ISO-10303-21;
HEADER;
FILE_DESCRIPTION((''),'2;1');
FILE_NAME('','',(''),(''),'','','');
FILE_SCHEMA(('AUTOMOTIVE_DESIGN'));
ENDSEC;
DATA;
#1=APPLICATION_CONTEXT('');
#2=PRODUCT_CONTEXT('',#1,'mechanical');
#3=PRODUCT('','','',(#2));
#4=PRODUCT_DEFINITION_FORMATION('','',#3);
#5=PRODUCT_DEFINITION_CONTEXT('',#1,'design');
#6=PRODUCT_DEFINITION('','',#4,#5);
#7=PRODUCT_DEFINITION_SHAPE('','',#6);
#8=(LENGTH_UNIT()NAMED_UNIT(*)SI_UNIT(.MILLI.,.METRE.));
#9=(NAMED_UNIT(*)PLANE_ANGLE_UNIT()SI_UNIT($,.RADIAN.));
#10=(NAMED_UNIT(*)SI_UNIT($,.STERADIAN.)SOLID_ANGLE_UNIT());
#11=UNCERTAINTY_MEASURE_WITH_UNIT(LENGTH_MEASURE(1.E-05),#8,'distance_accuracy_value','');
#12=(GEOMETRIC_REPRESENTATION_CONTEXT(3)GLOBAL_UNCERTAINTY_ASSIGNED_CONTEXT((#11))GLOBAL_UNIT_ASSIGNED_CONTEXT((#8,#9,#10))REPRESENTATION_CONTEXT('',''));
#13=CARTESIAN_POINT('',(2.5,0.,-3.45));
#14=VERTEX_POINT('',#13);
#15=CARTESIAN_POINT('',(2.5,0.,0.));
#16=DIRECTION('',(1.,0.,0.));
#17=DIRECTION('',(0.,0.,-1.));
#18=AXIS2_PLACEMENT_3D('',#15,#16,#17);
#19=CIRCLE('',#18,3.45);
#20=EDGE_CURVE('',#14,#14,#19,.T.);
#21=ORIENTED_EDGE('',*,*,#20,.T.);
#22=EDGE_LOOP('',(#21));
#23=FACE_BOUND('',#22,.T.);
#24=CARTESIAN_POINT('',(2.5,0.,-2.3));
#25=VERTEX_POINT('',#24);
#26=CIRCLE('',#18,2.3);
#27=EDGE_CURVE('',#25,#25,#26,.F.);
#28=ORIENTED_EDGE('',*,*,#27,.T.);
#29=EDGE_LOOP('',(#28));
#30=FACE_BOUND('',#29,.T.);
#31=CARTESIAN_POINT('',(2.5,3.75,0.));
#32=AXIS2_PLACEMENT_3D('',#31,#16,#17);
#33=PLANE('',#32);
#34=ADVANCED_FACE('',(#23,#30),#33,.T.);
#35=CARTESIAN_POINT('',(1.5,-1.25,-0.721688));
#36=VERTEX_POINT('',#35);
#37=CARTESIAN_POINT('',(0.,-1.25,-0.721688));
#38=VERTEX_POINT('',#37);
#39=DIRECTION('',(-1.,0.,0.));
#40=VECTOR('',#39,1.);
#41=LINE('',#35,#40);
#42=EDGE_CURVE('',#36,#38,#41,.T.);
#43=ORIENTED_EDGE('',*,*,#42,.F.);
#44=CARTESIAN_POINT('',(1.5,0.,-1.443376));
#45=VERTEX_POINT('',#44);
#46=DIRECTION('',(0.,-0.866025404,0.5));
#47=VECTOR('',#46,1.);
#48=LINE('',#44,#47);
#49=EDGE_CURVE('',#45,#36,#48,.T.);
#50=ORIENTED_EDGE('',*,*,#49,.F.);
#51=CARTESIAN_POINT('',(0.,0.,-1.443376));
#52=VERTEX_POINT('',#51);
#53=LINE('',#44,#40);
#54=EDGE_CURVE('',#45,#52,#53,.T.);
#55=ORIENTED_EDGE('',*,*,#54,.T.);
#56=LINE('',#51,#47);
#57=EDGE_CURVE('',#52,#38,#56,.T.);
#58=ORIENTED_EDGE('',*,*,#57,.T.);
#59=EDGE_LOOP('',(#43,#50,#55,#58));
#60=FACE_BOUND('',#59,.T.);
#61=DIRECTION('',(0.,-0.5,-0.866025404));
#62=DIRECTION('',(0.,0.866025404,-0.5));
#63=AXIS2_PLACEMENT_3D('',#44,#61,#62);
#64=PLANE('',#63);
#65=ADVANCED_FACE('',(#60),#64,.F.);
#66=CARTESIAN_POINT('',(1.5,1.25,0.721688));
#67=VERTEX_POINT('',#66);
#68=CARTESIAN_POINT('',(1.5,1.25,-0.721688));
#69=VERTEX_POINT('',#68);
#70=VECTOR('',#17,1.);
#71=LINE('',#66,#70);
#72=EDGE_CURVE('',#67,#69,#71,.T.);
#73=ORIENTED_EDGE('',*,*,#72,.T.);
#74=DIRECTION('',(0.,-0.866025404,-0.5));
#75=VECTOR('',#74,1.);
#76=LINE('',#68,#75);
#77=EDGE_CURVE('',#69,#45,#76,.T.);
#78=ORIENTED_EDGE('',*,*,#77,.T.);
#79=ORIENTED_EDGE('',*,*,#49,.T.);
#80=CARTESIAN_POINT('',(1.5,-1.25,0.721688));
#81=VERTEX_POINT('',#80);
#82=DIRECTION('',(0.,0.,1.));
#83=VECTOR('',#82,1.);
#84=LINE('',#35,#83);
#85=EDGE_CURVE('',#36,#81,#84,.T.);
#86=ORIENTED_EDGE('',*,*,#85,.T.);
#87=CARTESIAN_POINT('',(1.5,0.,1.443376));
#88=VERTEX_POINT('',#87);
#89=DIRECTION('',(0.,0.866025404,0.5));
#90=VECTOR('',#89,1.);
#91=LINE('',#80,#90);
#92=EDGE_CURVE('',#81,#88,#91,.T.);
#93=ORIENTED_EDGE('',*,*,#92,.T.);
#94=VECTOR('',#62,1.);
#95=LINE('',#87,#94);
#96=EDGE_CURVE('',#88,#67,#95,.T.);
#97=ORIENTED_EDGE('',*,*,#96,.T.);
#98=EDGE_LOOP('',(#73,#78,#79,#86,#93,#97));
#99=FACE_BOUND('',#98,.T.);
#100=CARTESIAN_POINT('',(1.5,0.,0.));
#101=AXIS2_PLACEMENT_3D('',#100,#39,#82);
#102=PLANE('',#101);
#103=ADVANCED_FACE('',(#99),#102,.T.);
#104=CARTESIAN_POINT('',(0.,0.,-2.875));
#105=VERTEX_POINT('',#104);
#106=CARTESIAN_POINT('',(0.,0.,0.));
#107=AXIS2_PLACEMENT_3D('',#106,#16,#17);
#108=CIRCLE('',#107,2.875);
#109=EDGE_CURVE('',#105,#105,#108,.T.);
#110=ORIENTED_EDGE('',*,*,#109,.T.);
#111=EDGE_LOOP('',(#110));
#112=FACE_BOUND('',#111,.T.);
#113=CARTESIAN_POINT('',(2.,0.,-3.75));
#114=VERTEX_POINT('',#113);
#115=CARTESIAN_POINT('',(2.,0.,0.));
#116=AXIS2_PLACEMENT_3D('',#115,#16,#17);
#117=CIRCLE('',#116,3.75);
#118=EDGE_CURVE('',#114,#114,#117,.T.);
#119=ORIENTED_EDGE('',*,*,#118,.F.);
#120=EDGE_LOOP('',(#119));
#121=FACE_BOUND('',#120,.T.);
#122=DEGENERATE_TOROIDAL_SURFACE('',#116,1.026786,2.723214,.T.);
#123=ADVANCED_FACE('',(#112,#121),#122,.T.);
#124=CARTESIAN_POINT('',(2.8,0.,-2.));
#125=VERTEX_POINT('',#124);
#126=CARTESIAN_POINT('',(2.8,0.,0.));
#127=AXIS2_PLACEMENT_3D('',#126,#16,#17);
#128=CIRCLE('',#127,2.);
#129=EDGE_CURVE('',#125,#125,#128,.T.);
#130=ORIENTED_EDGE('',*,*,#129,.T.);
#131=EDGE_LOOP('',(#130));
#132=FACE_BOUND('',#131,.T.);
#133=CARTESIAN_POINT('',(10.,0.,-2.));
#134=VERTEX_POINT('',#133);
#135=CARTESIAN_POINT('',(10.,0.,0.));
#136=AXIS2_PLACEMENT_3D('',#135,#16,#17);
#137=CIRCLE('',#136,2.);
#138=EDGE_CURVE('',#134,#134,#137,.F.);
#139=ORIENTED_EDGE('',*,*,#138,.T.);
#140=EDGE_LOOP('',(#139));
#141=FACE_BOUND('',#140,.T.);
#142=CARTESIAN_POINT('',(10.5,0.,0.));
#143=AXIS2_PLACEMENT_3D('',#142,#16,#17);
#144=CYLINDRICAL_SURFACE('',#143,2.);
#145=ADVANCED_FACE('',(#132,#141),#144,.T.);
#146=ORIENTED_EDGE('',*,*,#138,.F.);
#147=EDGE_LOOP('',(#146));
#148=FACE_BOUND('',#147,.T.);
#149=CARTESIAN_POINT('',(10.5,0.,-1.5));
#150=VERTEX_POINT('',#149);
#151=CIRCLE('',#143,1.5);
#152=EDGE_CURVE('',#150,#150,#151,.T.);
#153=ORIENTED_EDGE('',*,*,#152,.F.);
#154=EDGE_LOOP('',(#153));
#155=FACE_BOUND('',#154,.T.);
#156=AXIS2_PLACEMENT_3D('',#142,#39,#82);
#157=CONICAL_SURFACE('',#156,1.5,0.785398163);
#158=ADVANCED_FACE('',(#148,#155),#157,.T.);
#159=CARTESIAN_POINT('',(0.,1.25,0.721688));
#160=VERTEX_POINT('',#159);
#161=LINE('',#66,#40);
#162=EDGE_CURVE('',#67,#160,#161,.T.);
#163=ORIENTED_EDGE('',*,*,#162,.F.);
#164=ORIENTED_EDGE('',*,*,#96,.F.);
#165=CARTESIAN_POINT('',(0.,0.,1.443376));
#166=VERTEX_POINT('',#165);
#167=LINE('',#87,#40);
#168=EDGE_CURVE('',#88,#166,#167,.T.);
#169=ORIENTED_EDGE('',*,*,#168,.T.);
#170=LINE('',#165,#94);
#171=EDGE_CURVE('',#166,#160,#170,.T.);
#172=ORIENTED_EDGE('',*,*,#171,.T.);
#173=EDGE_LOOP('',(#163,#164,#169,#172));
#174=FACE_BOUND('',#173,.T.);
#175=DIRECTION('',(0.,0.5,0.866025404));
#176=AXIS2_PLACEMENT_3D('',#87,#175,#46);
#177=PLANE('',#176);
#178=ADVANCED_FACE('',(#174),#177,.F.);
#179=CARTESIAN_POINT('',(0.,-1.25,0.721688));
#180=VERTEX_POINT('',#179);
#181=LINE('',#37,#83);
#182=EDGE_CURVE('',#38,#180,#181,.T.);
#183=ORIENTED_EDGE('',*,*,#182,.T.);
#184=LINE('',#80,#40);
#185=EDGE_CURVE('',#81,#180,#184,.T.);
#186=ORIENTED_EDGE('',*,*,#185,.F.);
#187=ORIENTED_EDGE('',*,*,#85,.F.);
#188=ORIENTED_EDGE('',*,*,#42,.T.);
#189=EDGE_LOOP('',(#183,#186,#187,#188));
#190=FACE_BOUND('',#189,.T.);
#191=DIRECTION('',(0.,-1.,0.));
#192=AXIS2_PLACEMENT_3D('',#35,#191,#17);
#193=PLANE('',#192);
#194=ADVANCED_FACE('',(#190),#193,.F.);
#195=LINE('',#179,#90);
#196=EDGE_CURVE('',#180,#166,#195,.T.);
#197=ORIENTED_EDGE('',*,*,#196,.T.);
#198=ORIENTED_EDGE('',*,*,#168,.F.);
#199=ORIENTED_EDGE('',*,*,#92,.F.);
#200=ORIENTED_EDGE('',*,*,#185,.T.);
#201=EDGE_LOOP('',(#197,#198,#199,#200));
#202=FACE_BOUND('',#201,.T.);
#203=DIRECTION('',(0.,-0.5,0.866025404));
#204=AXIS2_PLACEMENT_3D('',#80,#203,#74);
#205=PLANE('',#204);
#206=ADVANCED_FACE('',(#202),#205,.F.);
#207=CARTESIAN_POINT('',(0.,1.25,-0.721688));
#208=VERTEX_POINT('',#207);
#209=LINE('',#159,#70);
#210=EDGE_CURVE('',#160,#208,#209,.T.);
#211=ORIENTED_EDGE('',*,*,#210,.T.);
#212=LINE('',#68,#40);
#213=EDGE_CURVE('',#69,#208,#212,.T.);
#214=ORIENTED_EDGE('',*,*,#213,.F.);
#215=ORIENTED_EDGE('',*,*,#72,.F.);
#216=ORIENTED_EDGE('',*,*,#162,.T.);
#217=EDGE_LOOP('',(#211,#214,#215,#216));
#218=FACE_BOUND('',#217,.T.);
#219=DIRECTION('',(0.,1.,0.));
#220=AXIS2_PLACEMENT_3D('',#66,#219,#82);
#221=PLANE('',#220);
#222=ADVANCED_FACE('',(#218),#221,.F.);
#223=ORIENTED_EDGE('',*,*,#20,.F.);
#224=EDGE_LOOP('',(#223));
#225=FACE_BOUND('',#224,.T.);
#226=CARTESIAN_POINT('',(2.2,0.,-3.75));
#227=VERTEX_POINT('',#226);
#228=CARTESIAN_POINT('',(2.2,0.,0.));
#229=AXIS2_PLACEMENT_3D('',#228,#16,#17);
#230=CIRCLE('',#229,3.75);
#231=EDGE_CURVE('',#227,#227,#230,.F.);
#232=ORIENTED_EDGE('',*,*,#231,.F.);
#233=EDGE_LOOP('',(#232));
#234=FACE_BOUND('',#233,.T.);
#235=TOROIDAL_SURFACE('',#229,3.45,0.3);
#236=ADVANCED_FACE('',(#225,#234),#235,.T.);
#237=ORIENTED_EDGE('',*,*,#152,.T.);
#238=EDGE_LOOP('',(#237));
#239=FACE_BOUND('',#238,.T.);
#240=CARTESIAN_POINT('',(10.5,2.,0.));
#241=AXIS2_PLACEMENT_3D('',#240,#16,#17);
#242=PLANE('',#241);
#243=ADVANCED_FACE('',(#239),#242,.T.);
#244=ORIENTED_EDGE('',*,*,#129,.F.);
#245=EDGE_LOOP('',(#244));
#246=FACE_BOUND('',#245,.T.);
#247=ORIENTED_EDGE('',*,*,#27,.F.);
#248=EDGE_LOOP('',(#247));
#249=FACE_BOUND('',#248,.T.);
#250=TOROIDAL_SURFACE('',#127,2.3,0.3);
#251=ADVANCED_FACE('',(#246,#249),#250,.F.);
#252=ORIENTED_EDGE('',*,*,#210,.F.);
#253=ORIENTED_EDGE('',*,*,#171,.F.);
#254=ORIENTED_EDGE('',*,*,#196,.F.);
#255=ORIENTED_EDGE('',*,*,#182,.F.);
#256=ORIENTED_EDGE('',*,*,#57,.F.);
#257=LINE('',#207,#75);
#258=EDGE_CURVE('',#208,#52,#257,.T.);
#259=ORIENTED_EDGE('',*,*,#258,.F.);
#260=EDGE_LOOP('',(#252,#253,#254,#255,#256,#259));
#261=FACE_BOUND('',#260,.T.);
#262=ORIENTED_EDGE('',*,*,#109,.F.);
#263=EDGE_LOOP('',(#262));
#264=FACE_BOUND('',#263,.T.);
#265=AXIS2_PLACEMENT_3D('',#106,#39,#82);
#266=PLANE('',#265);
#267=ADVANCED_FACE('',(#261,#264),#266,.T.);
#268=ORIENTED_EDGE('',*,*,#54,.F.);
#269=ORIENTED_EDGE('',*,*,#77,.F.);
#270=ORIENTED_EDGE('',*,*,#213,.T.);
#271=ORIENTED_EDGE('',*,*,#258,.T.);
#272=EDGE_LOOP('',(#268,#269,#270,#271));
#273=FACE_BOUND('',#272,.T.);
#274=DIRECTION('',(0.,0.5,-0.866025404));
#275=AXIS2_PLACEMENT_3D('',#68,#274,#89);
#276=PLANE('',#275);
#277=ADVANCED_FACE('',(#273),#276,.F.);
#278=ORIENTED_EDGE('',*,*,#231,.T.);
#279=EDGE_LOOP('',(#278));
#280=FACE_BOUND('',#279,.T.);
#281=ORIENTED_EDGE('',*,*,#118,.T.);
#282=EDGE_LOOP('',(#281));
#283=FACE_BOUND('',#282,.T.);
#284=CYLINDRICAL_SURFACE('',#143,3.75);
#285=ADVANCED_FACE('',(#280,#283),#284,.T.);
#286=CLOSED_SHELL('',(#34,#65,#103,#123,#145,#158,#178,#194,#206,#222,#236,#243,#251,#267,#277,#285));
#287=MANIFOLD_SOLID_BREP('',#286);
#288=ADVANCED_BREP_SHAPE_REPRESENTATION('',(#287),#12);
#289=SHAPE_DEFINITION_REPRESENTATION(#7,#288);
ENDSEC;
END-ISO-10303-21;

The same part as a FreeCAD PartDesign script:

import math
import FreeCAD as App
import Part
import Sketcher
from FreeCAD import Vector
Q = App.Units.Quantity


def edges_at(feature, points):
    """Names of the edges that pass closest to the given points."""
    edges = feature.Shape.Edges
    near = lambda p: min(range(len(edges)), key=lambda i: edges[i].distToShape(Part.Vertex(*p))[0])
    return sorted({f"Edge{near(p) + 1}" for p in points})

doc = App.newDocument("Part")
body = doc.addObject("PartDesign::Body", "Body")

# Sketch on XY plane
sketch1 = body.newObject("Sketcher::SketchObject", "Sketch")
sketch1.AttachmentSupport = (doc.getObject("XY_Plane"), [""])
sketch1.MapMode = "FlatFace"
sketch1.addGeometry([
    Part.LineSegment(Vector(0, 2.9, 0), Vector(0, 0, 0)),  # 0
    Part.LineSegment(Vector(0, 0, 0), Vector(10.5, 0, 0)),  # 1
    Part.LineSegment(Vector(10.5, 0, 0), Vector(10.5, 2, 0)),  # 2
    Part.LineSegment(Vector(10.5, 2, 0), Vector(2.5, 2, 0)),  # 3
    Part.LineSegment(Vector(2.5, 2, 0), Vector(2.5, 3.8, 0)),  # 4
    Part.LineSegment(Vector(2.5, 3.8, 0), Vector(2, 3.8, 0)),  # 5
    Part.ArcOfCircle(Part.Circle(Vector(2, 1, 0), Vector(0, 0, 1), 2.7), math.radians(90), math.radians(137)),  # 6
], False)
sketch1.addConstraint([
    Sketcher.Constraint("Coincident", 0, 2, 1, 1),
    Sketcher.Constraint("Coincident", 1, 2, 2, 1),
    Sketcher.Constraint("Coincident", 2, 2, 3, 1),
    Sketcher.Constraint("Coincident", 3, 2, 4, 1),
    Sketcher.Constraint("Coincident", 4, 2, 5, 1),
    Sketcher.Constraint("Tangent", 5, 2, 6, 1),
    Sketcher.Constraint("Coincident", 6, 2, 0, 1),
    Sketcher.Constraint("Vertical", 0),
    Sketcher.Constraint("Horizontal", 1),
    Sketcher.Constraint("Vertical", 2),
    Sketcher.Constraint("Horizontal", 3),
    Sketcher.Constraint("Vertical", 4),
    Sketcher.Constraint("Horizontal", 5),
    Sketcher.Constraint("Coincident", 0, 2, -1, 1),
    Sketcher.Constraint("DistanceX", 3, 2, 3, 1, Q("8 mm")),
    Sketcher.Constraint("DistanceY", 2, 1, 2, 2, Q("2 mm")),
    Sketcher.Constraint("DistanceX", 1, 1, 1, 2, Q("10.5 mm")),
    Sketcher.Constraint("DistanceX", 5, 2, 5, 1, Q("0.5 mm")),
    Sketcher.Constraint("DistanceY", 4, 1, 4, 2, Q("1.75 mm")),
    Sketcher.Constraint("DistanceY", 0, 2, 0, 1, Q("2.875 mm")),
])
revolution = body.newObject("PartDesign::Revolution", "Revolution")
revolution.Profile = sketch1
revolution.ReferenceAxis = (sketch1, ["H_Axis"])
revolution.Angle = 360

# Sketch on YZ plane
sketch2 = body.newObject("Sketcher::SketchObject", "Sketch001")
sketch2.AttachmentSupport = (doc.getObject("YZ_Plane"), [""])
sketch2.MapMode = "FlatFace"
sketch2.addGeometry([
    Part.LineSegment(Vector(1.2, 0.7, 0), Vector(1.2, -0.7, 0)),  # 0
    Part.LineSegment(Vector(1.2, -0.7, 0), Vector(0, -1.4, 0)),  # 1
    Part.LineSegment(Vector(0, -1.4, 0), Vector(-1.2, -0.7, 0)),  # 2
    Part.LineSegment(Vector(-1.2, -0.7, 0), Vector(-1.2, 0.7, 0)),  # 3
    Part.LineSegment(Vector(-1.2, 0.7, 0), Vector(0, 1.4, 0)),  # 4
    Part.LineSegment(Vector(0, 1.4, 0), Vector(1.2, 0.7, 0)),  # 5
], False)
sketch2.addConstraint([
    Sketcher.Constraint("Coincident", 0, 2, 1, 1),
    Sketcher.Constraint("Coincident", 1, 2, 2, 1),
    Sketcher.Constraint("Coincident", 2, 2, 3, 1),
    Sketcher.Constraint("Coincident", 3, 2, 4, 1),
    Sketcher.Constraint("Coincident", 4, 2, 5, 1),
    Sketcher.Constraint("Coincident", 5, 2, 0, 1),
    Sketcher.Constraint("Vertical", 0),
    Sketcher.Constraint("Vertical", 3),
    Sketcher.Constraint("Symmetric", 0, 2, 3, 2, -1, 1),
    Sketcher.Constraint("Symmetric", 1, 2, 4, 2, -1, 1),
    Sketcher.Constraint("PointOnObject", 1, 2, -2),
    Sketcher.Constraint("Parallel", 2, 5),
    Sketcher.Constraint("Horizontal", 0, 2, 2, 2),
    Sketcher.Constraint("Angle", 1, Q("-150 deg")),
    Sketcher.Constraint("DistanceX", 2, 2, 0, 2, Q("2.5 mm")),
    Sketcher.Constraint("DistanceY", 0, 2, 0, 1, Q("1.443376 mm")),
])
pocket1 = body.newObject("PartDesign::Pocket", "Pocket")
pocket1.Profile = sketch2
pocket1.Length = 1.5
pocket1.Reversed = True
doc.recompute()

fillet = body.newObject("PartDesign::Fillet", "Fillet")
fillet.Base = (pocket1, edges_at(pocket1, [(2.5, 0, 2), (2.5, 0, 3.75)]))
fillet.Radius = 0.3
doc.recompute()

chamfer = body.newObject("PartDesign::Chamfer", "Chamfer")
chamfer.Base = (fillet, edges_at(fillet, [(10.5, 0, 2)]))
chamfer.Size = 0.5

doc.recompute()
